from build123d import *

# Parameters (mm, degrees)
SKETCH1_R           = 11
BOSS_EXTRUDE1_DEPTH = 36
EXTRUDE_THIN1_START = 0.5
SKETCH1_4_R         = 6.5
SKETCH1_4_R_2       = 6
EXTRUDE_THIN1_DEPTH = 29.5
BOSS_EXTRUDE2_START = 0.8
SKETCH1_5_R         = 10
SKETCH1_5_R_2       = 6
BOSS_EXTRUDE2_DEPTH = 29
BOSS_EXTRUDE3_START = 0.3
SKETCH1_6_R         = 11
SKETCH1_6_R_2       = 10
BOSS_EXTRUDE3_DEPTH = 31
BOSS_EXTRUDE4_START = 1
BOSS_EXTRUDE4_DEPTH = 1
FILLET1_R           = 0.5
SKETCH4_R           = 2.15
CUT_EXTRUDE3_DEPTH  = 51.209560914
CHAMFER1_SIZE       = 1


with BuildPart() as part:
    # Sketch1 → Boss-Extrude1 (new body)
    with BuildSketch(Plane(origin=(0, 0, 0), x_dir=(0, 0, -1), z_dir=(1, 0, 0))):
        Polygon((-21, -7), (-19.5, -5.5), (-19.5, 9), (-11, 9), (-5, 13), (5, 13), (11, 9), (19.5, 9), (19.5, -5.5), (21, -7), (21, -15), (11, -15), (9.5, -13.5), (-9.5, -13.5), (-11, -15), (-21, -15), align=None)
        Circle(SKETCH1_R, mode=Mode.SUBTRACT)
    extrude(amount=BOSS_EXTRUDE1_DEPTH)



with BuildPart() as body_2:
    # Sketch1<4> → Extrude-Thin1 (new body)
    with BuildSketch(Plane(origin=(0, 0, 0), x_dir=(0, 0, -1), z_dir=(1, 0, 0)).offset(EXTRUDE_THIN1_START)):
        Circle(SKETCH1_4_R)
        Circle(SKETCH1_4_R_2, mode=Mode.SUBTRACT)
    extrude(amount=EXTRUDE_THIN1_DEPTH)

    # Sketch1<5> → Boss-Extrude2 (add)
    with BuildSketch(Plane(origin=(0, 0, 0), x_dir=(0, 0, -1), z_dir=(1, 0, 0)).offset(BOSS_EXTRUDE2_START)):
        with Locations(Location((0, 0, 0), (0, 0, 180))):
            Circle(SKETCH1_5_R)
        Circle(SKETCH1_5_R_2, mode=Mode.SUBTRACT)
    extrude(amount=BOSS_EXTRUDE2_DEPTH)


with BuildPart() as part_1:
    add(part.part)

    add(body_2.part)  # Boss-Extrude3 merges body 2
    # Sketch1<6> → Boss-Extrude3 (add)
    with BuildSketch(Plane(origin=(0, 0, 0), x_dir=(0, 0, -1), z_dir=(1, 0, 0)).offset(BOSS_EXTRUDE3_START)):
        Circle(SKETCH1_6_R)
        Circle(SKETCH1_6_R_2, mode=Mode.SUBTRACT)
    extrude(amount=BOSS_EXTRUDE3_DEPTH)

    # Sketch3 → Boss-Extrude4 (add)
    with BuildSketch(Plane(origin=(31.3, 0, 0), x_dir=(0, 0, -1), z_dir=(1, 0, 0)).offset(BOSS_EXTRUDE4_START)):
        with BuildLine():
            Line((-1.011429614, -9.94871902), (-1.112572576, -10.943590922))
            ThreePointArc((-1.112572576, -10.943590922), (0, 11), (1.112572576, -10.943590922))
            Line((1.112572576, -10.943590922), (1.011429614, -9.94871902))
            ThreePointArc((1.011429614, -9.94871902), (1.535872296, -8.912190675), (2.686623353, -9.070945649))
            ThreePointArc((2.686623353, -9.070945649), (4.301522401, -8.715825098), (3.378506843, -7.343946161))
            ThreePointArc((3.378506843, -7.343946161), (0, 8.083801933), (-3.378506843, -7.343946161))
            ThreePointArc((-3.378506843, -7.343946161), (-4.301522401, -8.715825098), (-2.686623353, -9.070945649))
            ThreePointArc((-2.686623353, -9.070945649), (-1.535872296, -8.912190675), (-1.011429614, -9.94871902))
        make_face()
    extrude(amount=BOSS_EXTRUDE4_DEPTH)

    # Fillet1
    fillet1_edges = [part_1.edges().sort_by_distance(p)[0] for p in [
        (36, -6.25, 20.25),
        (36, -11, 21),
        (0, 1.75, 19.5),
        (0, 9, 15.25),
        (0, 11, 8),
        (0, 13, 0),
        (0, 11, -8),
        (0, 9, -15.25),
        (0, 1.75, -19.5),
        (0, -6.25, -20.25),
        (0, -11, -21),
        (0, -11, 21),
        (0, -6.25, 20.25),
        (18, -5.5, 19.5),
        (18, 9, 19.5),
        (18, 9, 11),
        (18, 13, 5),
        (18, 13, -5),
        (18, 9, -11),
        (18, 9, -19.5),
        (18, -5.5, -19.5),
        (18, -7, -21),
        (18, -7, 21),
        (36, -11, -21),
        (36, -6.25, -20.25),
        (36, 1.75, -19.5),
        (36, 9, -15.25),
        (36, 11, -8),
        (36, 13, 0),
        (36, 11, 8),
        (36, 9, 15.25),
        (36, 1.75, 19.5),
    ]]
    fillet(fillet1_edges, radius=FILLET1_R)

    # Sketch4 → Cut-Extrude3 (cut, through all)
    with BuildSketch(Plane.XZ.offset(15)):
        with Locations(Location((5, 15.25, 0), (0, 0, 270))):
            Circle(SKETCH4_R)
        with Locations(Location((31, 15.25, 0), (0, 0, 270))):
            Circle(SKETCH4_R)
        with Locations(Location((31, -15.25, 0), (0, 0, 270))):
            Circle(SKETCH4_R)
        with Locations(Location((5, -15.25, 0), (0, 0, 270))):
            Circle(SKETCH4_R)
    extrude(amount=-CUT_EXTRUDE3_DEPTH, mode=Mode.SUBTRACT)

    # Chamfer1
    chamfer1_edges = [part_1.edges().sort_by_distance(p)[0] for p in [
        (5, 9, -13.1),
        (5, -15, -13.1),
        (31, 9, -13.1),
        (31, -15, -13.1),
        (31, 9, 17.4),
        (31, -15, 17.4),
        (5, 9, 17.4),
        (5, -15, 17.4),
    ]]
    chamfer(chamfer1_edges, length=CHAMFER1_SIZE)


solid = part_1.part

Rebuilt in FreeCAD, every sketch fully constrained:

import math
import FreeCAD as App
import Part
import Sketcher

V = App.Vector
Q = App.Units.Quantity


def edges_at(feature, points):
    """Names of the edges that pass closest to the given points."""
    edges = feature.Shape.Edges
    near = lambda p: min(range(len(edges)), key=lambda i: edges[i].distToShape(Part.Vertex(*p))[0])
    return sorted({f"Edge{near(p) + 1}" for p in points})

doc = App.newDocument("Part")
body = doc.addObject("PartDesign::Body", "Body")

# Sketch on YZ plane
sketch1 = body.newObject("Sketcher::SketchObject", "Sketch")
sketch1.AttachmentSupport = (doc.getObject("YZ_Plane"), [""])
sketch1.MapMode = "FlatFace"
sketch1.addGeometry(Part.LineSegment(V(-5.5, 19.5, 0), V(-7, 21, 0)), False)
sketch1.addGeometry(Part.LineSegment(V(-7, 21, 0), V(-15, 21, 0)), False)
sketch1.addGeometry(Part.LineSegment(V(-15, 21, 0), V(-15, 11, 0)), False)
sketch1.addGeometry(Part.LineSegment(V(-15, 11, 0), V(-13.5, 9.5, 0)), False)
sketch1.addGeometry(Part.LineSegment(V(-13.5, 9.5, 0), V(-13.5, -9.5, 0)), False)
sketch1.addGeometry(Part.LineSegment(V(-13.5, -9.5, 0), V(-15, -11, 0)), False)
sketch1.addGeometry(Part.LineSegment(V(-15, -11, 0), V(-15, -21, 0)), False)
sketch1.addGeometry(Part.LineSegment(V(-15, -21, 0), V(-7, -21, 0)), False)
sketch1.addGeometry(Part.LineSegment(V(-7, -21, 0), V(-5.5, -19.5, 0)), False)
sketch1.addGeometry(Part.LineSegment(V(-5.5, -19.5, 0), V(9, -19.5, 0)), False)
sketch1.addGeometry(Part.LineSegment(V(9, -19.5, 0), V(9, -11, 0)), False)
sketch1.addGeometry(Part.LineSegment(V(9, -11, 0), V(13, -5, 0)), False)
sketch1.addGeometry(Part.LineSegment(V(13, -5, 0), V(13, 5, 0)), False)
sketch1.addGeometry(Part.LineSegment(V(13, 5, 0), V(9, 11, 0)), False)
sketch1.addGeometry(Part.LineSegment(V(9, 11, 0), V(9, 19.5, 0)), False)
sketch1.addGeometry(Part.LineSegment(V(9, 19.5, 0), V(-5.5, 19.5, 0)), False)
sketch1.addGeometry(Part.Circle(V(0, 0, 0), V(0, 0, 1), 11), False)
sketch1.addConstraint(Sketcher.Constraint("Coincident", 0, 2, 1, 1))
sketch1.addConstraint(Sketcher.Constraint("Coincident", 1, 2, 2, 1))
sketch1.addConstraint(Sketcher.Constraint("Coincident", 2, 2, 3, 1))
sketch1.addConstraint(Sketcher.Constraint("Coincident", 3, 2, 4, 1))
sketch1.addConstraint(Sketcher.Constraint("Coincident", 4, 2, 5, 1))
sketch1.addConstraint(Sketcher.Constraint("Coincident", 5, 2, 6, 1))
sketch1.addConstraint(Sketcher.Constraint("Coincident", 6, 2, 7, 1))
sketch1.addConstraint(Sketcher.Constraint("Coincident", 7, 2, 8, 1))
sketch1.addConstraint(Sketcher.Constraint("Coincident", 8, 2, 9, 1))
sketch1.addConstraint(Sketcher.Constraint("Coincident", 9, 2, 10, 1))
sketch1.addConstraint(Sketcher.Constraint("Coincident", 10, 2, 11, 1))
sketch1.addConstraint(Sketcher.Constraint("Coincident", 11, 2, 12, 1))
sketch1.addConstraint(Sketcher.Constraint("Coincident", 12, 2, 13, 1))
sketch1.addConstraint(Sketcher.Constraint("Coincident", 13, 2, 14, 1))
sketch1.addConstraint(Sketcher.Constraint("Coincident", 14, 2, 15, 1))
sketch1.addConstraint(Sketcher.Constraint("Coincident", 15, 2, 0, 1))
sketch1.addConstraint(Sketcher.Constraint("Horizontal", 1))
sketch1.addConstraint(Sketcher.Constraint("Vertical", 2))
sketch1.addConstraint(Sketcher.Constraint("Vertical", 4))
sketch1.addConstraint(Sketcher.Constraint("Vertical", 6))
sketch1.addConstraint(Sketcher.Constraint("Horizontal", 7))
sketch1.addConstraint(Sketcher.Constraint("Horizontal", 9))
sketch1.addConstraint(Sketcher.Constraint("Vertical", 10))
sketch1.addConstraint(Sketcher.Constraint("Vertical", 12))
sketch1.addConstraint(Sketcher.Constraint("Vertical", 14))
sketch1.addConstraint(Sketcher.Constraint("Horizontal", 15))
sketch1.addConstraint(Sketcher.Constraint("Coincident", 16, 3, -1, 1))
sketch1.addConstraint(Sketcher.Constraint("Symmetric", 2, 2, 5, 2, -1))
sketch1.addConstraint(Sketcher.Constraint("Symmetric", 0, 2, 7, 2, -1))
sketch1.addConstraint(Sketcher.Constraint("Symmetric", 10, 2, 13, 2, -1))
sketch1.addConstraint(Sketcher.Constraint("Symmetric", 8, 2, 15, 2, -1))
sketch1.addConstraint(Sketcher.Constraint("Parallel", 0, 3))
sketch1.addConstraint(Sketcher.Constraint("Perpendicular", 3, 5))
sketch1.addConstraint(Sketcher.Constraint("Parallel", 5, 8))
sketch1.addConstraint(Sketcher.Constraint("Horizontal", 5, 2, 10, 2))
sketch1.addConstraint(Sketcher.Constraint("Equal", 6, 12))
sketch1.addConstraint(Sketcher.Constraint("Equal", 0, 3))
sketch1.addConstraint(Sketcher.Constraint("Equal", 11, 13))
sketch1.addConstraint(Sketcher.Constraint("Diameter", 16, Q("22 mm")))
sketch1.addConstraint(Sketcher.Constraint("DistanceX", 1, 2, 1, 1, Q("8 mm")))
sketch1.addConstraint(Sketcher.Constraint("DistanceY", 2, 2, 2, 1, Q("10 mm")))
sketch1.addConstraint(Sketcher.Constraint("DistanceY", 4, 2, 4, 1, Q("19 mm")))
sketch1.addConstraint(Sketcher.Constraint("DistanceX", 9, 1, 9, 2, Q("14.5 mm")))
sketch1.addConstraint(Sketcher.Constraint("DistanceY", 10, 1, 10, 2, Q("8.5 mm")))
sketch1.addConstraint(Sketcher.Constraint("DistanceX", 0, 2, -1, 1, Q("7 mm")))
sketch1.addConstraint(Sketcher.Constraint("DistanceX", -1, 1, 11, 2, Q("13 mm")))
pad1 = body.newObject("PartDesign::Pad", "Pad")
pad1.Profile = sketch1
pad1.Length = 36
body2 = doc.addObject("PartDesign::Body", "Body001")

# Sketch on YZ plane
sketch2 = body2.newObject("Sketcher::SketchObject", "Sketch001")
sketch2.AttachmentSupport = (doc.getObject("YZ_Plane001"), [""])
sketch2.MapMode = "FlatFace"
sketch2.AttachmentOffset = App.Placement(V(0, 0, 0.5), App.Rotation())
sketch2.addGeometry(Part.Circle(V(0, 0, 0), V(0, 0, 1), 6), False)
sketch2.addGeometry(Part.Circle(V(0, 0, 0), V(0, 0, 1), 6), False)
sketch2.addConstraint(Sketcher.Constraint("Coincident", 0, 3, -1, 1))
sketch2.addConstraint(Sketcher.Constraint("Coincident", 1, 3, -1, 1))
sketch2.addConstraint(Sketcher.Constraint("Diameter", 0, Q("13 mm")))
sketch2.addConstraint(Sketcher.Constraint("Diameter", 1, Q("12 mm")))
pad2 = body2.newObject("PartDesign::Pad", "Pad001")
pad2.Profile = sketch2
pad2.Length = 29.5

# Sketch on YZ plane
sketch3 = body2.newObject("Sketcher::SketchObject", "Sketch002")
sketch3.AttachmentSupport = (doc.getObject("YZ_Plane001"), [""])
sketch3.MapMode = "FlatFace"
sketch3.AttachmentOffset = App.Placement(V(0, 0, 0.8), App.Rotation())
sketch3.addGeometry(Part.Circle(V(0, 0, 0), V(0, 0, 1), 10), False)
sketch3.addGeometry(Part.Circle(V(0, 0, 0), V(0, 0, 1), 6), False)
sketch3.addConstraint(Sketcher.Constraint("Coincident", 0, 3, -1, 1))
sketch3.addConstraint(Sketcher.Constraint("Coincident", 1, 3, -1, 1))
sketch3.addConstraint(Sketcher.Constraint("Diameter", 0, Q("20 mm")))
sketch3.addConstraint(Sketcher.Constraint("Diameter", 1, Q("12 mm")))
pad3 = body2.newObject("PartDesign::Pad", "Pad002")
pad3.Profile = sketch3
pad3.Length = 29
body.AllowCompound = True
doc.recompute()

boolean = body.newObject("PartDesign::Boolean", "Boolean")
boolean.Type = "Fuse"
boolean.addObjects([body2])

# Sketch on YZ plane
sketch4 = body.newObject("Sketcher::SketchObject", "Sketch003")
sketch4.AttachmentSupport = (doc.getObject("YZ_Plane"), [""])
sketch4.MapMode = "FlatFace"
sketch4.AttachmentOffset = App.Placement(V(0, 0, 0.3), App.Rotation())
sketch4.addGeometry(Part.Circle(V(0, 0, 0), V(0, 0, 1), 11), False)
sketch4.addGeometry(Part.Circle(V(0, 0, 0), V(0, 0, 1), 10), False)
sketch4.addConstraint(Sketcher.Constraint("Coincident", 0, 3, -1, 1))
sketch4.addConstraint(Sketcher.Constraint("Coincident", 1, 3, -1, 1))
sketch4.addConstraint(Sketcher.Constraint("Diameter", 0, Q("22 mm")))
sketch4.addConstraint(Sketcher.Constraint("Diameter", 1, Q("20 mm")))
pad4 = body.newObject("PartDesign::Pad", "Pad003")
pad4.Profile = sketch4
pad4.Length = 31

# Sketch on YZ plane
sketch5 = body.newObject("Sketcher::SketchObject", "Sketch004")
sketch5.AttachmentSupport = (doc.getObject("YZ_Plane"), [""])
sketch5.MapMode = "FlatFace"
sketch5.AttachmentOffset = App.Placement(V(0, 0, 32.3), App.Rotation())
sketch5.addGeometry(Part.LineSegment(V(-10.9, 1.1, 0), V(-9.9, 1, 0)), False)
sketch5.addGeometry(Part.ArcOfCircle(Part.Circle(V(-9.8, 2, 0), V(0, 0, 1), 1), math.radians(-99), math.radians(43)), False)
sketch5.addGeometry(Part.ArcOfCircle(Part.Circle(V(-8.3, 3.4, 0), V(0, 0, 1), 1), math.radians(0), math.radians(223)), False)
sketch5.addGeometry(Part.ArcOfCircle(Part.Circle(V(0, 0, 0), V(0, 0, 1), 8.1), math.radians(-155), math.radians(155)), False)
sketch5.addGeometry(Part.ArcOfCircle(Part.Circle(V(-8.3, -3.4, 0), V(0, 0, 1), 1), math.radians(137), math.radians(360)), False)
sketch5.addGeometry(Part.ArcOfCircle(Part.Circle(V(-9.8, -2, 0), V(0, 0, 1), 1), math.radians(-43), math.radians(99)), False)
sketch5.addGeometry(Part.LineSegment(V(-9.9, -1, 0), V(-10.9, -1.1, 0)), False)
sketch5.addGeometry(Part.ArcOfCircle(Part.Circle(V(0, 0, 0), V(0, 0, 1), 11), math.radians(-174), math.radians(174)), False)
sketch5.addConstraint(Sketcher.Constraint("Coincident", 0, 2, 1, 1))
sketch5.addConstraint(Sketcher.Constraint("Tangent", 1, 2, 2, 2))
sketch5.addConstraint(Sketcher.Constraint("Coincident", 2, 1, 3, 2))
sketch5.addConstraint(Sketcher.Constraint("Coincident", 3, 1, 4, 2))
sketch5.addConstraint(Sketcher.Constraint("Tangent", 4, 1, 5, 1))
sketch5.addConstraint(Sketcher.Constraint("Coincident", 5, 2, 6, 1))
sketch5.addConstraint(Sketcher.Constraint("Coincident", 6, 2, 7, 1))
sketch5.addConstraint(Sketcher.Constraint("Coincident", 7, 2, 0, 1))
sketch5.addConstraint(Sketcher.Constraint("Coincident", 3, 3, -1, 1))
sketch5.addConstraint(Sketcher.Constraint("Coincident", 7, 3, -1, 1))
sketch5.addConstraint(Sketcher.Constraint("Equal", 1, 2))
sketch5.addConstraint(Sketcher.Constraint("Equal", 2, 4))
sketch5.addConstraint(Sketcher.Constraint("Equal", 4, 5))
sketch5.addConstraint(Sketcher.Constraint("Symmetric", 2, 3, 4, 3, -1))
sketch5.addConstraint(Sketcher.Constraint("Symmetric", 0, 2, 5, 2, -1))
sketch5.addConstraint(Sketcher.Constraint("Vertical", 6, 2, 7, 2))
sketch5.addConstraint(Sketcher.Constraint("Radius", 1, Q("1 mm")))
sketch5.addConstraint(Sketcher.Constraint("Radius", 7, Q("11 mm")))
sketch5.addConstraint(Sketcher.Constraint("Distance", 0, Q("1 mm")))
sketch5.addConstraint(Sketcher.Constraint("DistanceY", -1, 1, 1, 3, Q("2 mm")))
sketch5.addConstraint(Sketcher.Constraint("Radius", 3, Q("8.083802 mm")))
sketch5.addConstraint(Sketcher.Constraint("DistanceX", 1, 2, 2, 1, Q("1.726999 mm")))
sketch5.addConstraint(Sketcher.Constraint("DistanceX", 1, 3, -1, 1, Q("9.797959 mm")))
sketch5.addConstraint(Sketcher.Constraint("DistanceX", 6, 2, -1, 1, Q("10.943591 mm")))
pad5 = body.newObject("PartDesign::Pad", "Pad004")
pad5.Profile = sketch5
pad5.Length = 1
doc.recompute()

fillet = body.newObject("PartDesign::Fillet", "Fillet")
fillet.Base = (pad5, edges_at(pad5, [
    (36, -6.25, 20.25),
    (36, -11, 21),
    (0, 1.75, 19.5),
    (0, 9, 15.25),
    (0, 11, 8),
    (0, 13, 0),
    (0, 11, -8),
    (0, 9, -15.25),
    (0, 1.75, -19.5),
    (0, -6.25, -20.25),
    (0, -11, -21),
    (0, -11, 21),
    (0, -6.25, 20.25),
    (18, -5.5, 19.5),
    (18, 9, 19.5),
    (18, 9, 11),
    (18, 13, 5),
    (18, 13, -5),
    (18, 9, -11),
    (18, 9, -19.5),
    (18, -5.5, -19.5),
    (18, -7, -21),
    (18, -7, 21),
    (36, -11, -21),
    (36, -6.25, -20.25),
    (36, 1.75, -19.5),
    (36, 9, -15.25),
    (36, 11, -8),
    (36, 13, 0),
    (36, 11, 8),
    (36, 9, 15.25),
    (36, 1.75, 19.5),
]))
fillet.Radius = 0.5

# Sketch on XZ plane
sketch6 = body.newObject("Sketcher::SketchObject", "Sketch005")
sketch6.AttachmentSupport = (doc.getObject("XZ_Plane"), [""])
sketch6.MapMode = "FlatFace"
sketch6.AttachmentOffset = App.Placement(V(0, 0, 15), App.Rotation())
sketch6.addGeometry(Part.Circle(V(5, 15.2, 0), V(0, 0, 1), 2.1), False)
sketch6.addGeometry(Part.Circle(V(31, 15.2, 0), V(0, 0, 1), 2.1), False)
sketch6.addGeometry(Part.Circle(V(31, -15.2, 0), V(0, 0, 1), 2.1), False)
sketch6.addGeometry(Part.Circle(V(5, -15.2, 0), V(0, 0, 1), 2.1), False)
sketch6.addConstraint(Sketcher.Constraint("Equal", 0, 1))
sketch6.addConstraint(Sketcher.Constraint("Equal", 1, 2))
sketch6.addConstraint(Sketcher.Constraint("Equal", 2, 3))
sketch6.addConstraint(Sketcher.Constraint("Symmetric", 1, 3, 2, 3, -1))
sketch6.addConstraint(Sketcher.Constraint("Symmetric", 0, 3, 3, 3, -1))
sketch6.addConstraint(Sketcher.Constraint("Horizontal", 0, 3, 1, 3))
sketch6.addConstraint(Sketcher.Constraint("Diameter", 0, Q("4.3 mm")))
sketch6.addConstraint(Sketcher.Constraint("DistanceX", -1, 1, 0, 3, Q("5 mm")))
sketch6.addConstraint(Sketcher.Constraint("DistanceX", -1, 1, 1, 3, Q("31 mm")))
sketch6.addConstraint(Sketcher.Constraint("DistanceY", 2, 3, 1, 3, Q("30.5 mm")))
pocket1 = body.newObject("PartDesign::Pocket", "Pocket")
pocket1.Profile = sketch6
pocket1.Type = "ThroughAll"
doc.recompute()

chamfer = body.newObject("PartDesign::Chamfer", "Chamfer")
chamfer.Base = (pocket1, edges_at(pocket1, [
    (5, 9, -13.1),
    (5, -15, -13.1),
    (31, 9, -13.1),
    (31, -15, -13.1),
    (31, 9, 17.4),
    (31, -15, 17.4),
    (5, 9, 17.4),
    (5, -15, 17.4),
]))
chamfer.Size = 1

doc.recompute()
